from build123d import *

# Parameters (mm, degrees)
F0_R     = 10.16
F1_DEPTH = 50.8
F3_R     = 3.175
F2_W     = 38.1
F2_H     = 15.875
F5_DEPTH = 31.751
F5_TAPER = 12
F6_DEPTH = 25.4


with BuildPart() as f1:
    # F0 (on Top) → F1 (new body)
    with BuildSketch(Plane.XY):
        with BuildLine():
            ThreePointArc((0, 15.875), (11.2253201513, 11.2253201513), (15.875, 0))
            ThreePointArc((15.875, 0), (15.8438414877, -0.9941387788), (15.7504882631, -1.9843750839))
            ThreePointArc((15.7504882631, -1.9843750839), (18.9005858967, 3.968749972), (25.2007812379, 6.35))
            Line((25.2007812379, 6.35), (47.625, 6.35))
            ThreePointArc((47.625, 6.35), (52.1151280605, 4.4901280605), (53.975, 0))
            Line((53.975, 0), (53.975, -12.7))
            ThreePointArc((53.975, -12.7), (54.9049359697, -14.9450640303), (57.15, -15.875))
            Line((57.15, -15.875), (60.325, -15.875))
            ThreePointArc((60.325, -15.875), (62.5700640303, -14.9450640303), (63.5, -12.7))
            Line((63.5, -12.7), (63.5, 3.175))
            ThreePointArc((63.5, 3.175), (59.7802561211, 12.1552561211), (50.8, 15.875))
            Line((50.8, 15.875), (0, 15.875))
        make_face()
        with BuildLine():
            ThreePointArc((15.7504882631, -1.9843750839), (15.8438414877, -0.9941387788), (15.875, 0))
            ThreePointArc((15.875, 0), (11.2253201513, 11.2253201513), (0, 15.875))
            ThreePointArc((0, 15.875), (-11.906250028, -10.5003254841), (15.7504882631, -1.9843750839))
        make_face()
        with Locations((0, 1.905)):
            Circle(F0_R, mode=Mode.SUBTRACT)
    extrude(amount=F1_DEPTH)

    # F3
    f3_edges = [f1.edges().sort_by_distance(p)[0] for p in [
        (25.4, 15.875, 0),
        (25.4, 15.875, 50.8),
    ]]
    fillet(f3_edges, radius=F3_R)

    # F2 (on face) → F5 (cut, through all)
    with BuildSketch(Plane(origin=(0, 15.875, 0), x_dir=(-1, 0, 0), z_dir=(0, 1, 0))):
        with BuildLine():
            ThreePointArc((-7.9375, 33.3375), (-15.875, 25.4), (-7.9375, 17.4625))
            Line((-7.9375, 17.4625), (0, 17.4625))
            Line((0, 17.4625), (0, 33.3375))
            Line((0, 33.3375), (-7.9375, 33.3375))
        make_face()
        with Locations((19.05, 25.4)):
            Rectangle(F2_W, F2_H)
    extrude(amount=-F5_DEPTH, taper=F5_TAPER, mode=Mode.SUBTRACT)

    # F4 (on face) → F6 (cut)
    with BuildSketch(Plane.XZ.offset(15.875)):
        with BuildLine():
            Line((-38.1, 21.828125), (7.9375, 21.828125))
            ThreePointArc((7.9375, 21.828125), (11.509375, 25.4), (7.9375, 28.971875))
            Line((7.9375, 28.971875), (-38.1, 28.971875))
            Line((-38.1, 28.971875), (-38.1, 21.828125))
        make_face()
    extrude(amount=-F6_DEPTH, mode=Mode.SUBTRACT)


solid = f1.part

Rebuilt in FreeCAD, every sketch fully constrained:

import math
import FreeCAD as App
import Part
import Sketcher

V = App.Vector
Q = App.Units.Quantity


def edges_at(feature, points):
    """Names of the edges that pass closest to the given points."""
    edges = feature.Shape.Edges
    near = lambda p: min(range(len(edges)), key=lambda i: edges[i].distToShape(Part.Vertex(*p))[0])
    return sorted({f"Edge{near(p) + 1}" for p in points})

doc = App.newDocument("Part")
body = doc.addObject("PartDesign::Body", "Body")

# Sketch on XY plane
sketch1 = body.newObject("Sketcher::SketchObject", "Sketch")
sketch1.AttachmentSupport = (doc.getObject("XY_Plane"), [""])
sketch1.MapMode = "FlatFace"
sketch1.addGeometry([
    Part.ArcOfCircle(Part.Circle(V(25.2, -3.2, 0), V(0, 0, 1), 9.5), math.radians(90), math.radians(173)),  # 0
    Part.LineSegment(V(25.2, 6.3, 0), V(47.6, 6.3, 0)),  # 1
    Part.ArcOfCircle(Part.Circle(V(47.6, 0, 0), V(0, 0, 1), 6.3), math.radians(0), math.radians(90)),  # 2
    Part.LineSegment(V(54, 0, 0), V(54, -12.7, 0)),  # 3
    Part.ArcOfCircle(Part.Circle(V(57.1, -12.7, 0), V(0, 0, 1), 3.2), math.radians(180), math.radians(270)),  # 4
    Part.LineSegment(V(57.1, -15.9, 0), V(60.3, -15.9, 0)),  # 5
    Part.ArcOfCircle(Part.Circle(V(60.3, -12.7, 0), V(0, 0, 1), 3.2), math.radians(-90), math.radians(0)),  # 6
    Part.LineSegment(V(63.5, -12.7, 0), V(63.5, 3.2, 0)),  # 7
    Part.ArcOfCircle(Part.Circle(V(50.8, 3.2, 0), V(0, 0, 1), 12.7), math.radians(0), math.radians(90)),  # 8
    Part.LineSegment(V(50.8, 15.9, 0), V(0, 15.9, 0)),  # 9
    Part.ArcOfCircle(Part.Circle(V(0, 0, 0), V(0, 0, 1), 15.9), math.radians(90), math.radians(353)),  # 10
    Part.Circle(V(0, 1.9, 0), V(0, 0, 1), 10.2),  # 11
], False)
sketch1.addConstraint([
    Sketcher.Constraint("Tangent", 0, 1, 1, 1),
    Sketcher.Constraint("Tangent", 1, 2, 2, 2),
    Sketcher.Constraint("Tangent", 2, 1, 3, 1),
    Sketcher.Constraint("Tangent", 3, 2, 4, 1),
    Sketcher.Constraint("Tangent", 4, 2, 5, 1),
    Sketcher.Constraint("Tangent", 5, 2, 6, 1),
    Sketcher.Constraint("Tangent", 6, 2, 7, 1),
    Sketcher.Constraint("Tangent", 7, 2, 8, 1),
    Sketcher.Constraint("Tangent", 8, 2, 9, 1),
    Sketcher.Constraint("Tangent", 9, 2, 10, 1),
    Sketcher.Constraint("Tangent", 10, 2, 0, 2),
    Sketcher.Constraint("Horizontal", 1),
    Sketcher.Constraint("Vertical", 3),
    Sketcher.Constraint("Horizontal", 5),
    Sketcher.Constraint("Vertical", 7),
    Sketcher.Constraint("Horizontal", 9),
    Sketcher.Constraint("Coincident", 10, 3, -1, 1),
    Sketcher.Constraint("Equal", 4, 6),
    Sketcher.Constraint("PointOnObject", 2, 3, -1),
    Sketcher.Constraint("PointOnObject", 11, 3, -2),
    Sketcher.Constraint("Diameter", 11, Q("0.8 in")),
    Sketcher.Constraint("Radius", 8, Q("0.5 in")),
    Sketcher.Constraint("DistanceX", 9, 2, 9, 1, Q("2 in")),
    Sketcher.Constraint("Radius", 2, Q("0.25 in")),
    Sketcher.Constraint("DistanceY", 3, 2, 3, 1, Q("0.5 in")),
    Sketcher.Constraint("Radius", 0, Q("0.375 in")),
    Sketcher.Constraint("Radius", 4, Q("0.125 in")),
    Sketcher.Constraint("Radius", 10, Q("0.625 in")),
    Sketcher.Constraint("DistanceX", 2, 3, 6, 3, Q("0.5 in")),
    Sketcher.Constraint("DistanceY", 0, 3, 11, 3, Q("0.2 in")),
])
pad1 = body.newObject("PartDesign::Pad", "Pad")
pad1.Profile = sketch1
pad1.Length = Q("2 in")
doc.recompute()

fillet = body.newObject("PartDesign::Fillet", "Fillet")
fillet.Base = (pad1, edges_at(pad1, [(25.4, 15.875, 0), (25.4, 15.875, 50.8)]))
fillet.Radius = Q("0.125 in")

# Sketch on XZ plane
sketch2 = body.newObject("Sketcher::SketchObject", "Sketch001")
sketch2.AttachmentSupport = (doc.getObject("XZ_Plane"), [""])
sketch2.MapMode = "FlatFace"
sketch2.AttachmentOffset = App.Placement(V(0, 0, -0.625 * 25.4), App.Rotation())
sketch2.addGeometry([
    Part.ArcOfCircle(Part.Circle(V(8, 25, 0), V(0, 0, 1), 8), math.radians(-90), math.radians(90)),
    Part.LineSegment(V(8, 17, 0), V(-38, 17, 0)),
    Part.LineSegment(V(-38, 17, 0), V(-38, 33, 0)),
    Part.LineSegment(V(-38, 33, 0), V(8, 33, 0)),
], False)
sketch2.addConstraint([
    Sketcher.Constraint("Tangent", 0, 1, 1, 1),
    Sketcher.Constraint("Coincident", 1, 2, 2, 1),
    Sketcher.Constraint("Coincident", 2, 2, 3, 1),
    Sketcher.Constraint("Tangent", 3, 2, 0, 2),
    Sketcher.Constraint("Horizontal", 1),
    Sketcher.Constraint("Vertical", 2),
    Sketcher.Constraint("Horizontal", 3),
    Sketcher.Constraint("DistanceY", -1, 1, 0, 3, Q("1 in")),
    Sketcher.Constraint("Radius", 0, Q("0.3125 in")),
    Sketcher.Constraint("DistanceX", 1, 2, -1, 1, Q("1.5 in")),
    Sketcher.Constraint("DistanceX", 1, 2, 1, 1, Q("1.8125 in")),
])
pocket1 = body.newObject("PartDesign::Pocket", "Pocket")
pocket1.Profile = sketch2
pocket1.Length = 31.751
pocket1.Reversed = True
pocket1.TaperAngle = -12

# Sketch on XZ plane
sketch3 = body.newObject("Sketcher::SketchObject", "Sketch002")
sketch3.AttachmentSupport = (doc.getObject("XZ_Plane"), [""])
sketch3.MapMode = "FlatFace"
sketch3.AttachmentOffset = App.Placement(V(0, 0, 0.625 * 25.4), App.Rotation())
sketch3.addGeometry([
    Part.LineSegment(V(-38.1, 21.8, 0), V(7.9, 21.8, 0)),
    Part.ArcOfCircle(Part.Circle(V(7.9, 25.4, 0), V(0, 0, 1), 3.6), math.radians(-90), math.radians(90)),
    Part.LineSegment(V(7.9, 29, 0), V(-38.1, 29, 0)),
    Part.LineSegment(V(-38.1, 29, 0), V(-38.1, 21.8, 0)),
], False)
sketch3.addConstraint([
    Sketcher.Constraint("Tangent", 0, 2, 1, 1),
    Sketcher.Constraint("Tangent", 1, 2, 2, 1),
    Sketcher.Constraint("Coincident", 2, 2, 3, 1),
    Sketcher.Constraint("Coincident", 3, 2, 0, 1),
    Sketcher.Constraint("Horizontal", 0),
    Sketcher.Constraint("Horizontal", 2),
    Sketcher.Constraint("Vertical", 3),
    Sketcher.Constraint("DistanceY", -1, 1, 1, 3, Q("1 in")),
    Sketcher.Constraint("Radius", 1, Q("0.140625 in")),
    Sketcher.Constraint("DistanceX", 2, 2, -1, 1, Q("1.5 in")),
    Sketcher.Constraint("DistanceX", 0, 1, 0, 2, Q("1.8125 in")),
])
pocket2 = body.newObject("PartDesign::Pocket", "Pocket001")
pocket2.Profile = sketch3
pocket2.Length = Q("1 in")

doc.recompute()
